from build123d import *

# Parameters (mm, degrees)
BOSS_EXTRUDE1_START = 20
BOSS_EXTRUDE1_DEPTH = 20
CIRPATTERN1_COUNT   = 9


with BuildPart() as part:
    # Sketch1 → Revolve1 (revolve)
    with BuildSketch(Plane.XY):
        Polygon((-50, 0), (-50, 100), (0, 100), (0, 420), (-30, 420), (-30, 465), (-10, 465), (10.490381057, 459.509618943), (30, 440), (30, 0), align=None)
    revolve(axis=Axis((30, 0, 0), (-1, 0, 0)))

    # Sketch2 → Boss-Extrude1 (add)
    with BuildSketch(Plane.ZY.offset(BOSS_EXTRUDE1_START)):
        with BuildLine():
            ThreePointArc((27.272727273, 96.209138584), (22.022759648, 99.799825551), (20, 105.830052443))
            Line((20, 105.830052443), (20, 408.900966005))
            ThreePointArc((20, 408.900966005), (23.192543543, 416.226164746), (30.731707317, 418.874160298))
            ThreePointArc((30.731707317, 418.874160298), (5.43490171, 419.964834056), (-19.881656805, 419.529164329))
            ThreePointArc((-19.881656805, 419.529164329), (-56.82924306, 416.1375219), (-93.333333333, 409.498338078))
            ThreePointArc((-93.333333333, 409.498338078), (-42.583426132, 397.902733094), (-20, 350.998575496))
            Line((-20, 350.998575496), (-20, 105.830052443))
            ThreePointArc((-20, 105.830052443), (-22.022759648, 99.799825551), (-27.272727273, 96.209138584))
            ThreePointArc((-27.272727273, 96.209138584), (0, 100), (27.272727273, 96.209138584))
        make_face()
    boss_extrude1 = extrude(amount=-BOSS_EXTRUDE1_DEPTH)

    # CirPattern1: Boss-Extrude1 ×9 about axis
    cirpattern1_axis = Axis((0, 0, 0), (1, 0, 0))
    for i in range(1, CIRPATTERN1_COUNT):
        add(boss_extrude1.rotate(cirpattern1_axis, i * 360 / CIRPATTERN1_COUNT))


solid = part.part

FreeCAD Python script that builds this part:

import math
import FreeCAD as App
import Part
import Sketcher
from FreeCAD import Vector
Q = App.Units.Quantity

doc = App.newDocument("Part")
body = doc.addObject("PartDesign::Body", "Body")

sketch1 = doc.addObject("Sketcher::SketchObject", "Sketch")
body.addObject(sketch1)
sketch1.AttachmentSupport = (doc.XY_Plane, [""])
sketch1.MapMode = "FlatFace"
sketch1.addGeometry([
    Part.LineSegment(Vector(-50, 100, 0), Vector(-50, 0, 0)),
    Part.LineSegment(Vector(-50, 0, 0), Vector(30, 0, 0)),
    Part.LineSegment(Vector(30, 0, 0), Vector(30, 440, 0)),
    Part.LineSegment(Vector(30, 440, 0), Vector(10, 460, 0)),
    Part.LineSegment(Vector(10, 460, 0), Vector(-10, 465, 0)),
    Part.LineSegment(Vector(-10, 465, 0), Vector(-30, 465, 0)),
    Part.LineSegment(Vector(-30, 465, 0), Vector(-30, 420, 0)),
    Part.LineSegment(Vector(-30, 420, 0), Vector(0, 420, 0)),
    Part.LineSegment(Vector(0, 420, 0), Vector(0, 100, 0)),
    Part.LineSegment(Vector(0, 100, 0), Vector(-50, 100, 0)),
], False)
sketch1.addConstraint([
    Sketcher.Constraint("Coincident", 0, 2, 1, 1),
    Sketcher.Constraint("Coincident", 1, 2, 2, 1),
    Sketcher.Constraint("Coincident", 2, 2, 3, 1),
    Sketcher.Constraint("Coincident", 3, 2, 4, 1),
    Sketcher.Constraint("Coincident", 4, 2, 5, 1),
    Sketcher.Constraint("Coincident", 5, 2, 6, 1),
    Sketcher.Constraint("Coincident", 6, 2, 7, 1),
    Sketcher.Constraint("Coincident", 7, 2, 8, 1),
    Sketcher.Constraint("Coincident", 8, 2, 9, 1),
    Sketcher.Constraint("Coincident", 9, 2, 0, 1),
    Sketcher.Constraint("Vertical", 0),
    Sketcher.Constraint("Horizontal", 1),
    Sketcher.Constraint("Vertical", 2),
    Sketcher.Constraint("Horizontal", 5),
    Sketcher.Constraint("Vertical", 6),
    Sketcher.Constraint("Horizontal", 7),
    Sketcher.Constraint("Vertical", 8),
    Sketcher.Constraint("Horizontal", 9),
    Sketcher.Constraint("PointOnObject", 0, 2, -1),
    Sketcher.Constraint("PointOnObject", 7, 2, -2),
    Sketcher.Constraint("DistanceX", 1, 1, 1, 2, 80.0),
    Sketcher.Constraint("DistanceX", 5, 2, 5, 1, 20.0),
    Sketcher.Constraint("DistanceX", 7, 1, 7, 2, 30.0),
    Sketcher.Constraint("DistanceX", 9, 2, 9, 1, 50.0),
    Sketcher.Constraint("DistanceY", 0, 2, 0, 1, 100.0),
    Sketcher.Constraint("DistanceY", 2, 1, 2, 2, 440.0),
    Sketcher.Constraint("DistanceY", 6, 2, 6, 1, 45.0),
    Sketcher.Constraint("DistanceY", 8, 2, 8, 1, 320.0),
    Sketcher.Constraint("Angle", 3, Q("135 deg")),
    Sketcher.Constraint("Angle", 4, Q("165 deg")),
])
revolution = doc.addObject("PartDesign::Revolution", "Revolution")
body.addObject(revolution)
revolution.Profile = sketch1
revolution.ReferenceAxis = (sketch1, ["H_Axis"])
revolution.Angle = 360

sketch2 = doc.addObject("Sketcher::SketchObject", "Sketch001")
body.addObject(sketch2)
sketch2.AttachmentSupport = (doc.YZ_Plane, [""])
sketch2.MapMode = "FlatFace"
sketch2.AttachmentOffset = App.Placement(Vector(0, 0, -20), App.Rotation())
sketch2.addGeometry([
    Part.ArcOfCircle(Part.Circle(Vector(106, 30, 0), Vector(0, 0, 1), 10), math.radians(-164), math.radians(-90)),
    Part.LineSegment(Vector(106, 20, 0), Vector(409, 20, 0)),
    Part.ArcOfCircle(Part.Circle(Vector(409, 30, 0), Vector(0, 0, 1), 10), math.radians(-90), math.radians(4)),
    Part.ArcOfCircle(Part.Circle(Vector(0, 0, 0), Vector(0, 0, 1), 420), math.radians(-2.71), math.radians(4.2)),
    Part.ArcOfCircle(Part.Circle(Vector(0, 0, 0), Vector(0, 0, 1), 420), math.radians(-12.84), math.radians(-2.71)),
    Part.ArcOfCircle(Part.Circle(Vector(351, -80, 0), Vector(0, 0, 1), 60), math.radians(-13), math.radians(90)),
    Part.LineSegment(Vector(351, -20, 0), Vector(106, -20, 0)),
    Part.ArcOfCircle(Part.Circle(Vector(106, -30, 0), Vector(0, 0, 1), 10), math.radians(90), math.radians(164)),
    Part.ArcOfCircle(Part.Circle(Vector(0, 0, 0), Vector(0, 0, 1), 100), math.radians(-16), math.radians(16)),
], False)
sketch2.addConstraint([
    Sketcher.Constraint("Tangent", 0, 2, 1, 1),
    Sketcher.Constraint("Tangent", 1, 2, 2, 1),
    Sketcher.Constraint("Tangent", 2, 2, 3, 2),
    Sketcher.Constraint("Tangent", 3, 1, 4, 2),
    Sketcher.Constraint("Tangent", 4, 1, 5, 1),
    Sketcher.Constraint("Tangent", 5, 2, 6, 1),
    Sketcher.Constraint("Tangent", 6, 2, 7, 1),
    Sketcher.Constraint("Tangent", 7, 2, 8, 1),
    Sketcher.Constraint("Tangent", 8, 2, 0, 1),
    Sketcher.Constraint("Horizontal", 1),
    Sketcher.Constraint("Horizontal", 6),
    Sketcher.Constraint("Coincident", 3, 3, -1, 1),
    Sketcher.Constraint("Coincident", 8, 3, -1, 1),
    Sketcher.Constraint("Equal", 0, 2),
    Sketcher.Constraint("Equal", 3, 4),
    Sketcher.Constraint("Equal", 2, 7),
    Sketcher.Constraint("Vertical", 0, 3, 7, 3),
    Sketcher.Constraint("Radius", 0, 10.0),
    Sketcher.Constraint("Radius", 3, 420.0),
    Sketcher.Constraint("Radius", 5, 60.0),
    Sketcher.Constraint("Radius", 8, 100.0),
    Sketcher.Constraint("DistanceY", -1, 1, 0, 3, 30.0),
    Sketcher.Constraint("DistanceX", 1, 2, 3, 1, 10.628198),
])
pad1 = doc.addObject("PartDesign::Pad", "Pad")
body.addObject(pad1)
pad1.Profile = sketch2
pad1.Length = 20
doc.recompute()

polarpattern = doc.addObject("PartDesign::PolarPattern", "PolarPattern")
body.addObject(polarpattern)
polarpattern.Originals = [pad1]
polarpattern.Axis = (doc.X_Axis, [""])
polarpattern.Angle = 360
polarpattern.Occurrences = 9
body.Tip = polarpattern

doc.recompute()
